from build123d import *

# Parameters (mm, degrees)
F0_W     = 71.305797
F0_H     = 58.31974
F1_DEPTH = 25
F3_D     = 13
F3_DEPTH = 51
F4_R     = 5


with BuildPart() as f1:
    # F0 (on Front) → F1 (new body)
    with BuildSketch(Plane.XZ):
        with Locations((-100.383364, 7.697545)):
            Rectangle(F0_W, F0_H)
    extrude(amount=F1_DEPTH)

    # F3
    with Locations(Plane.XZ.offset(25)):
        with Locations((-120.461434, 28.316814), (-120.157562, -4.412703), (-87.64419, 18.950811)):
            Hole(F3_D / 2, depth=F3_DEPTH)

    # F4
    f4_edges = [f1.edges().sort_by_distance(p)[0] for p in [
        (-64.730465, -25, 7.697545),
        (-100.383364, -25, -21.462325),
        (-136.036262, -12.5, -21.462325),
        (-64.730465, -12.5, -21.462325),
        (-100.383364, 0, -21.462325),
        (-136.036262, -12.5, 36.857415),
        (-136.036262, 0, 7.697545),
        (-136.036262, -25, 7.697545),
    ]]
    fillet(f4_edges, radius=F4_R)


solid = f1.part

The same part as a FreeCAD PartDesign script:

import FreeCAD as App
import Part
import Sketcher
from FreeCAD import Vector
Q = App.Units.Quantity


def edges_at(feature, points):
    """Names of the edges that pass closest to the given points."""
    edges = feature.Shape.Edges
    near = lambda p: min(range(len(edges)), key=lambda i: edges[i].distToShape(Part.Vertex(*p))[0])
    return sorted({f"Edge{near(p) + 1}" for p in points})

doc = App.newDocument("Part")
body = doc.addObject("PartDesign::Body", "Body")

# Sketch on XZ plane
sketch1 = body.newObject("Sketcher::SketchObject", "Sketch")
sketch1.AttachmentSupport = (doc.getObject("XZ_Plane"), [""])
sketch1.MapMode = "FlatFace"
sketch1.addGeometry([
    Part.LineSegment(Vector(-136, 37, 0), Vector(-136, -21, 0)),
    Part.LineSegment(Vector(-136, -21, 0), Vector(-65, -21, 0)),
    Part.LineSegment(Vector(-65, -21, 0), Vector(-65, 37, 0)),
    Part.LineSegment(Vector(-65, 37, 0), Vector(-136, 37, 0)),
], False)
sketch1.addConstraint([
    Sketcher.Constraint("Coincident", 0, 2, 1, 1),
    Sketcher.Constraint("Coincident", 1, 2, 2, 1),
    Sketcher.Constraint("Coincident", 2, 2, 3, 1),
    Sketcher.Constraint("Coincident", 3, 2, 0, 1),
    Sketcher.Constraint("Vertical", 0),
    Sketcher.Constraint("Horizontal", 1),
    Sketcher.Constraint("Vertical", 2),
    Sketcher.Constraint("Horizontal", 3),
    Sketcher.Constraint("DistanceY", 0, 2, 0, 1, Q("58.31974 mm")),
    Sketcher.Constraint("DistanceX", 1, 1, 1, 2, Q("71.305797 mm")),
    Sketcher.Constraint("DistanceX", 0, 2, -1, 1, Q("136.036262 mm")),
    Sketcher.Constraint("DistanceY", 0, 2, -1, 1, Q("21.462325 mm")),
])
pad1 = body.newObject("PartDesign::Pad", "Pad")
pad1.Profile = sketch1
pad1.Length = 25

# Sketch on XZ plane
sketch2 = body.newObject("Sketcher::SketchObject", "Sketch001")
sketch2.AttachmentSupport = (doc.getObject("XZ_Plane"), [""])
sketch2.MapMode = "FlatFace"
sketch2.AttachmentOffset = App.Placement(Vector(0, 0, 25), App.Rotation())
sketch2.addGeometry([
    Part.Circle(Vector(-120, 28, 0), Vector(0, 0, 1), 6),
    Part.Circle(Vector(-120, -4, 0), Vector(0, 0, 1), 6),
    Part.Circle(Vector(-88, 19, 0), Vector(0, 0, 1), 6),
], False)
sketch2.addConstraint([
    Sketcher.Constraint("Equal", 0, 1),
    Sketcher.Constraint("Equal", 1, 2),
    Sketcher.Constraint("Diameter", 0, Q("13 mm")),
    Sketcher.Constraint("DistanceX", 1, 3, -1, 1, Q("120.157562 mm")),
    Sketcher.Constraint("DistanceX", 2, 3, -1, 1, Q("87.64419 mm")),
    Sketcher.Constraint("DistanceY", -1, 1, 2, 3, Q("18.950811 mm")),
    Sketcher.Constraint("DistanceX", 0, 3, 1, 3, Q("0.303872 mm")),
    Sketcher.Constraint("DistanceY", -1, 1, 0, 3, Q("28.316814 mm")),
    Sketcher.Constraint("DistanceY", 1, 3, -1, 1, Q("4.412703 mm")),
])
doc.recompute()
hole = body.newObject("PartDesign::Hole", "Hole")
hole.Profile = sketch2
hole.ThreadType = "None"
hole.Diameter = 13
hole.DepthType = "Dimension"
hole.Depth = 51
hole.DrillPoint = "Flat"
doc.recompute()

fillet = body.newObject("PartDesign::Fillet", "Fillet")
fillet.Base = (hole, edges_at(hole, [
    (-64.73, -25, 7.698),
    (-100.383, -25, -21.462),
    (-136.036, -12.5, -21.462),
    (-64.73, -12.5, -21.462),
    (-100.383, 0, -21.462),
    (-136.036, -12.5, 36.857),
    (-136.036, 0, 7.698),
    (-136.036, -25, 7.698),
]))
fillet.Radius = 5

doc.recompute()
